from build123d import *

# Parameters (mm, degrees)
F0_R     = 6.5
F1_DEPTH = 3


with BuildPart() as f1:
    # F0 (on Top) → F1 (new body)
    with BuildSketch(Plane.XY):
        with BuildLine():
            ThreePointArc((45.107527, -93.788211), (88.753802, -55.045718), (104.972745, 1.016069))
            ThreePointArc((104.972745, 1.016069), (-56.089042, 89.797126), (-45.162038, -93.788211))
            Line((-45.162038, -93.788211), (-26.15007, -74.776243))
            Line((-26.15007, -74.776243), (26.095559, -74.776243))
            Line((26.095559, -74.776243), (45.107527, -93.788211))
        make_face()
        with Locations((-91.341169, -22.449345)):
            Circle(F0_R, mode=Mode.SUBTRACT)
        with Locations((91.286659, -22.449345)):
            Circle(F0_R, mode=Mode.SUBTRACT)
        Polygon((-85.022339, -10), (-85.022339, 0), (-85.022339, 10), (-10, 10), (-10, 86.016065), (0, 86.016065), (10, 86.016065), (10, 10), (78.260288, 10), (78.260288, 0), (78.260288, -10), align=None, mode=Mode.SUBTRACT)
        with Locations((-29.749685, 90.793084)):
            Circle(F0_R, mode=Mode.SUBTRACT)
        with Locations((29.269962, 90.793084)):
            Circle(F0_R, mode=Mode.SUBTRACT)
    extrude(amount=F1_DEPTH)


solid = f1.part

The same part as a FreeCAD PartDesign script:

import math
import FreeCAD as App
import Part
import Sketcher

V = App.Vector
Q = App.Units.Quantity


def add_polygon(sketch, points):
    """Adds a closed chain of lines whose ends are joined by coincident constraints."""
    first, n = sketch.GeometryCount, len(points)
    for a, b in zip(points, points[1:] + points[:1]):
        sketch.addGeometry(Part.LineSegment(App.Vector(*a, 0), App.Vector(*b, 0)), False)
    for i in range(n):
        sketch.addConstraint(Sketcher.Constraint("Coincident", first + i, 2, first + (i + 1) % n, 1))

doc = App.newDocument("Part")
body = doc.addObject("PartDesign::Body", "Body")

sketch1 = doc.addObject("Sketcher::SketchObject", "Sketch")
body.addObject(sketch1)
sketch1.AttachmentSupport = (doc.XY_Plane, [""])
sketch1.MapMode = "FlatFace"
sketch1.addGeometry(Part.ArcOfCircle(Part.Circle(V(0, 1, 0), V(0, 0, 1), 105), math.radians(-65), math.radians(0)), False)
sketch1.addGeometry(Part.ArcOfCircle(Part.Circle(V(0, 1, 0), V(0, 0, 1), 105), math.radians(0), math.radians(245)), False)
sketch1.addGeometry(Part.LineSegment(V(-45, -94, 0), V(-26, -75, 0)), False)
sketch1.addGeometry(Part.LineSegment(V(-26, -75, 0), V(26, -75, 0)), False)
sketch1.addGeometry(Part.LineSegment(V(26, -75, 0), V(45, -94, 0)), False)
sketch1.addGeometry(Part.Circle(V(-91, -22, 0), V(0, 0, 1), 6), False)
sketch1.addGeometry(Part.Circle(V(91, -22, 0), V(0, 0, 1), 6), False)
add_polygon(sketch1, [(78, -10), (-85, -10), (-85, 10), (-10, 10), (-10, 86), (10, 86), (10, 10), (78, 10)])
sketch1.addGeometry(Part.Circle(V(-30, 91, 0), V(0, 0, 1), 6), False)
sketch1.addGeometry(Part.Circle(V(29, 91, 0), V(0, 0, 1), 6), False)
sketch1.addConstraint(Sketcher.Constraint("Tangent", 0, 2, 1, 1))
sketch1.addConstraint(Sketcher.Constraint("Coincident", 1, 2, 2, 1))
sketch1.addConstraint(Sketcher.Constraint("Coincident", 2, 2, 3, 1))
sketch1.addConstraint(Sketcher.Constraint("Coincident", 3, 2, 4, 1))
sketch1.addConstraint(Sketcher.Constraint("Coincident", 4, 2, 0, 1))
sketch1.addConstraint(Sketcher.Constraint("Horizontal", 3))
sketch1.addConstraint(Sketcher.Constraint("Horizontal", 7))
sketch1.addConstraint(Sketcher.Constraint("Vertical", 8))
sketch1.addConstraint(Sketcher.Constraint("Horizontal", 9))
sketch1.addConstraint(Sketcher.Constraint("Vertical", 10))
sketch1.addConstraint(Sketcher.Constraint("Horizontal", 11))
sketch1.addConstraint(Sketcher.Constraint("Vertical", 12))
sketch1.addConstraint(Sketcher.Constraint("Horizontal", 13))
sketch1.addConstraint(Sketcher.Constraint("Vertical", 14))
sketch1.addConstraint(Sketcher.Constraint("Equal", 0, 1))
sketch1.addConstraint(Sketcher.Constraint("Equal", 5, 6))
sketch1.addConstraint(Sketcher.Constraint("Equal", 6, 15))
sketch1.addConstraint(Sketcher.Constraint("Equal", 15, 16))
sketch1.addConstraint(Sketcher.Constraint("Symmetric", 9, 2, 12, 2, -2))
sketch1.addConstraint(Sketcher.Constraint("Perpendicular", 2, 4))
sketch1.addConstraint(Sketcher.Constraint("Horizontal", 5, 3, 6, 3))
sketch1.addConstraint(Sketcher.Constraint("Horizontal", 15, 3, 16, 3))
sketch1.addConstraint(Sketcher.Constraint("Horizontal", 1, 3, 0, 2))
sketch1.addConstraint(Sketcher.Constraint("Horizontal", 1, 2, 4, 2))
sketch1.addConstraint(Sketcher.Constraint("Equal", 11, 8))
sketch1.addConstraint(Sketcher.Constraint("Equal", 2, 4))
sketch1.addConstraint(Sketcher.Constraint("Diameter", 5, Q("13 mm")))
sketch1.addConstraint(Sketcher.Constraint("Radius", 0, Q("105 mm")))
sketch1.addConstraint(Sketcher.Constraint("DistanceX", 11, 1, 11, 2, Q("20 mm")))
sketch1.addConstraint(Sketcher.Constraint("DistanceY", 7, 2, -1, 1, Q("10 mm")))
sketch1.addConstraint(Sketcher.Constraint("DistanceX", 3, 1, 3, 2, Q("52.245629 mm")))
sketch1.addConstraint(Sketcher.Constraint("DistanceX", 9, 1, 9, 2, Q("75.022339 mm")))
sketch1.addConstraint(Sketcher.Constraint("DistanceX", 13, 1, 13, 2, Q("68.260288 mm")))
sketch1.addConstraint(Sketcher.Constraint("DistanceX", 5, 3, 2, 2, Q("65.191099 mm")))
sketch1.addConstraint(Sketcher.Constraint("DistanceX", 3, 2, 6, 3, Q("65.1911 mm")))
sketch1.addConstraint(Sketcher.Constraint("DistanceX", 7, 2, 1, 2, Q("39.860301 mm")))
sketch1.addConstraint(Sketcher.Constraint("DistanceY", 10, 1, 10, 2, Q("76.016065 mm")))
sketch1.addConstraint(Sketcher.Constraint("DistanceY", -1, 1, 0, 3, Q("1.016069 mm")))
sketch1.addConstraint(Sketcher.Constraint("DistanceX", 5, 3, -1, 1, Q("91.341169 mm")))
sketch1.addConstraint(Sketcher.Constraint("DistanceX", -1, 1, 16, 3, Q("29.269962 mm")))
sketch1.addConstraint(Sketcher.Constraint("DistanceX", 15, 3, 1, 3, Q("29.72243 mm")))
sketch1.addConstraint(Sketcher.Constraint("DistanceY", 5, 3, 15, 3, Q("113.242429 mm")))
sketch1.addConstraint(Sketcher.Constraint("DistanceY", 10, 2, 15, 3, Q("4.777019 mm")))
pad1 = doc.addObject("PartDesign::Pad", "Pad")
body.addObject(pad1)
pad1.Profile = sketch1
pad1.Length = 3

doc.recompute()
